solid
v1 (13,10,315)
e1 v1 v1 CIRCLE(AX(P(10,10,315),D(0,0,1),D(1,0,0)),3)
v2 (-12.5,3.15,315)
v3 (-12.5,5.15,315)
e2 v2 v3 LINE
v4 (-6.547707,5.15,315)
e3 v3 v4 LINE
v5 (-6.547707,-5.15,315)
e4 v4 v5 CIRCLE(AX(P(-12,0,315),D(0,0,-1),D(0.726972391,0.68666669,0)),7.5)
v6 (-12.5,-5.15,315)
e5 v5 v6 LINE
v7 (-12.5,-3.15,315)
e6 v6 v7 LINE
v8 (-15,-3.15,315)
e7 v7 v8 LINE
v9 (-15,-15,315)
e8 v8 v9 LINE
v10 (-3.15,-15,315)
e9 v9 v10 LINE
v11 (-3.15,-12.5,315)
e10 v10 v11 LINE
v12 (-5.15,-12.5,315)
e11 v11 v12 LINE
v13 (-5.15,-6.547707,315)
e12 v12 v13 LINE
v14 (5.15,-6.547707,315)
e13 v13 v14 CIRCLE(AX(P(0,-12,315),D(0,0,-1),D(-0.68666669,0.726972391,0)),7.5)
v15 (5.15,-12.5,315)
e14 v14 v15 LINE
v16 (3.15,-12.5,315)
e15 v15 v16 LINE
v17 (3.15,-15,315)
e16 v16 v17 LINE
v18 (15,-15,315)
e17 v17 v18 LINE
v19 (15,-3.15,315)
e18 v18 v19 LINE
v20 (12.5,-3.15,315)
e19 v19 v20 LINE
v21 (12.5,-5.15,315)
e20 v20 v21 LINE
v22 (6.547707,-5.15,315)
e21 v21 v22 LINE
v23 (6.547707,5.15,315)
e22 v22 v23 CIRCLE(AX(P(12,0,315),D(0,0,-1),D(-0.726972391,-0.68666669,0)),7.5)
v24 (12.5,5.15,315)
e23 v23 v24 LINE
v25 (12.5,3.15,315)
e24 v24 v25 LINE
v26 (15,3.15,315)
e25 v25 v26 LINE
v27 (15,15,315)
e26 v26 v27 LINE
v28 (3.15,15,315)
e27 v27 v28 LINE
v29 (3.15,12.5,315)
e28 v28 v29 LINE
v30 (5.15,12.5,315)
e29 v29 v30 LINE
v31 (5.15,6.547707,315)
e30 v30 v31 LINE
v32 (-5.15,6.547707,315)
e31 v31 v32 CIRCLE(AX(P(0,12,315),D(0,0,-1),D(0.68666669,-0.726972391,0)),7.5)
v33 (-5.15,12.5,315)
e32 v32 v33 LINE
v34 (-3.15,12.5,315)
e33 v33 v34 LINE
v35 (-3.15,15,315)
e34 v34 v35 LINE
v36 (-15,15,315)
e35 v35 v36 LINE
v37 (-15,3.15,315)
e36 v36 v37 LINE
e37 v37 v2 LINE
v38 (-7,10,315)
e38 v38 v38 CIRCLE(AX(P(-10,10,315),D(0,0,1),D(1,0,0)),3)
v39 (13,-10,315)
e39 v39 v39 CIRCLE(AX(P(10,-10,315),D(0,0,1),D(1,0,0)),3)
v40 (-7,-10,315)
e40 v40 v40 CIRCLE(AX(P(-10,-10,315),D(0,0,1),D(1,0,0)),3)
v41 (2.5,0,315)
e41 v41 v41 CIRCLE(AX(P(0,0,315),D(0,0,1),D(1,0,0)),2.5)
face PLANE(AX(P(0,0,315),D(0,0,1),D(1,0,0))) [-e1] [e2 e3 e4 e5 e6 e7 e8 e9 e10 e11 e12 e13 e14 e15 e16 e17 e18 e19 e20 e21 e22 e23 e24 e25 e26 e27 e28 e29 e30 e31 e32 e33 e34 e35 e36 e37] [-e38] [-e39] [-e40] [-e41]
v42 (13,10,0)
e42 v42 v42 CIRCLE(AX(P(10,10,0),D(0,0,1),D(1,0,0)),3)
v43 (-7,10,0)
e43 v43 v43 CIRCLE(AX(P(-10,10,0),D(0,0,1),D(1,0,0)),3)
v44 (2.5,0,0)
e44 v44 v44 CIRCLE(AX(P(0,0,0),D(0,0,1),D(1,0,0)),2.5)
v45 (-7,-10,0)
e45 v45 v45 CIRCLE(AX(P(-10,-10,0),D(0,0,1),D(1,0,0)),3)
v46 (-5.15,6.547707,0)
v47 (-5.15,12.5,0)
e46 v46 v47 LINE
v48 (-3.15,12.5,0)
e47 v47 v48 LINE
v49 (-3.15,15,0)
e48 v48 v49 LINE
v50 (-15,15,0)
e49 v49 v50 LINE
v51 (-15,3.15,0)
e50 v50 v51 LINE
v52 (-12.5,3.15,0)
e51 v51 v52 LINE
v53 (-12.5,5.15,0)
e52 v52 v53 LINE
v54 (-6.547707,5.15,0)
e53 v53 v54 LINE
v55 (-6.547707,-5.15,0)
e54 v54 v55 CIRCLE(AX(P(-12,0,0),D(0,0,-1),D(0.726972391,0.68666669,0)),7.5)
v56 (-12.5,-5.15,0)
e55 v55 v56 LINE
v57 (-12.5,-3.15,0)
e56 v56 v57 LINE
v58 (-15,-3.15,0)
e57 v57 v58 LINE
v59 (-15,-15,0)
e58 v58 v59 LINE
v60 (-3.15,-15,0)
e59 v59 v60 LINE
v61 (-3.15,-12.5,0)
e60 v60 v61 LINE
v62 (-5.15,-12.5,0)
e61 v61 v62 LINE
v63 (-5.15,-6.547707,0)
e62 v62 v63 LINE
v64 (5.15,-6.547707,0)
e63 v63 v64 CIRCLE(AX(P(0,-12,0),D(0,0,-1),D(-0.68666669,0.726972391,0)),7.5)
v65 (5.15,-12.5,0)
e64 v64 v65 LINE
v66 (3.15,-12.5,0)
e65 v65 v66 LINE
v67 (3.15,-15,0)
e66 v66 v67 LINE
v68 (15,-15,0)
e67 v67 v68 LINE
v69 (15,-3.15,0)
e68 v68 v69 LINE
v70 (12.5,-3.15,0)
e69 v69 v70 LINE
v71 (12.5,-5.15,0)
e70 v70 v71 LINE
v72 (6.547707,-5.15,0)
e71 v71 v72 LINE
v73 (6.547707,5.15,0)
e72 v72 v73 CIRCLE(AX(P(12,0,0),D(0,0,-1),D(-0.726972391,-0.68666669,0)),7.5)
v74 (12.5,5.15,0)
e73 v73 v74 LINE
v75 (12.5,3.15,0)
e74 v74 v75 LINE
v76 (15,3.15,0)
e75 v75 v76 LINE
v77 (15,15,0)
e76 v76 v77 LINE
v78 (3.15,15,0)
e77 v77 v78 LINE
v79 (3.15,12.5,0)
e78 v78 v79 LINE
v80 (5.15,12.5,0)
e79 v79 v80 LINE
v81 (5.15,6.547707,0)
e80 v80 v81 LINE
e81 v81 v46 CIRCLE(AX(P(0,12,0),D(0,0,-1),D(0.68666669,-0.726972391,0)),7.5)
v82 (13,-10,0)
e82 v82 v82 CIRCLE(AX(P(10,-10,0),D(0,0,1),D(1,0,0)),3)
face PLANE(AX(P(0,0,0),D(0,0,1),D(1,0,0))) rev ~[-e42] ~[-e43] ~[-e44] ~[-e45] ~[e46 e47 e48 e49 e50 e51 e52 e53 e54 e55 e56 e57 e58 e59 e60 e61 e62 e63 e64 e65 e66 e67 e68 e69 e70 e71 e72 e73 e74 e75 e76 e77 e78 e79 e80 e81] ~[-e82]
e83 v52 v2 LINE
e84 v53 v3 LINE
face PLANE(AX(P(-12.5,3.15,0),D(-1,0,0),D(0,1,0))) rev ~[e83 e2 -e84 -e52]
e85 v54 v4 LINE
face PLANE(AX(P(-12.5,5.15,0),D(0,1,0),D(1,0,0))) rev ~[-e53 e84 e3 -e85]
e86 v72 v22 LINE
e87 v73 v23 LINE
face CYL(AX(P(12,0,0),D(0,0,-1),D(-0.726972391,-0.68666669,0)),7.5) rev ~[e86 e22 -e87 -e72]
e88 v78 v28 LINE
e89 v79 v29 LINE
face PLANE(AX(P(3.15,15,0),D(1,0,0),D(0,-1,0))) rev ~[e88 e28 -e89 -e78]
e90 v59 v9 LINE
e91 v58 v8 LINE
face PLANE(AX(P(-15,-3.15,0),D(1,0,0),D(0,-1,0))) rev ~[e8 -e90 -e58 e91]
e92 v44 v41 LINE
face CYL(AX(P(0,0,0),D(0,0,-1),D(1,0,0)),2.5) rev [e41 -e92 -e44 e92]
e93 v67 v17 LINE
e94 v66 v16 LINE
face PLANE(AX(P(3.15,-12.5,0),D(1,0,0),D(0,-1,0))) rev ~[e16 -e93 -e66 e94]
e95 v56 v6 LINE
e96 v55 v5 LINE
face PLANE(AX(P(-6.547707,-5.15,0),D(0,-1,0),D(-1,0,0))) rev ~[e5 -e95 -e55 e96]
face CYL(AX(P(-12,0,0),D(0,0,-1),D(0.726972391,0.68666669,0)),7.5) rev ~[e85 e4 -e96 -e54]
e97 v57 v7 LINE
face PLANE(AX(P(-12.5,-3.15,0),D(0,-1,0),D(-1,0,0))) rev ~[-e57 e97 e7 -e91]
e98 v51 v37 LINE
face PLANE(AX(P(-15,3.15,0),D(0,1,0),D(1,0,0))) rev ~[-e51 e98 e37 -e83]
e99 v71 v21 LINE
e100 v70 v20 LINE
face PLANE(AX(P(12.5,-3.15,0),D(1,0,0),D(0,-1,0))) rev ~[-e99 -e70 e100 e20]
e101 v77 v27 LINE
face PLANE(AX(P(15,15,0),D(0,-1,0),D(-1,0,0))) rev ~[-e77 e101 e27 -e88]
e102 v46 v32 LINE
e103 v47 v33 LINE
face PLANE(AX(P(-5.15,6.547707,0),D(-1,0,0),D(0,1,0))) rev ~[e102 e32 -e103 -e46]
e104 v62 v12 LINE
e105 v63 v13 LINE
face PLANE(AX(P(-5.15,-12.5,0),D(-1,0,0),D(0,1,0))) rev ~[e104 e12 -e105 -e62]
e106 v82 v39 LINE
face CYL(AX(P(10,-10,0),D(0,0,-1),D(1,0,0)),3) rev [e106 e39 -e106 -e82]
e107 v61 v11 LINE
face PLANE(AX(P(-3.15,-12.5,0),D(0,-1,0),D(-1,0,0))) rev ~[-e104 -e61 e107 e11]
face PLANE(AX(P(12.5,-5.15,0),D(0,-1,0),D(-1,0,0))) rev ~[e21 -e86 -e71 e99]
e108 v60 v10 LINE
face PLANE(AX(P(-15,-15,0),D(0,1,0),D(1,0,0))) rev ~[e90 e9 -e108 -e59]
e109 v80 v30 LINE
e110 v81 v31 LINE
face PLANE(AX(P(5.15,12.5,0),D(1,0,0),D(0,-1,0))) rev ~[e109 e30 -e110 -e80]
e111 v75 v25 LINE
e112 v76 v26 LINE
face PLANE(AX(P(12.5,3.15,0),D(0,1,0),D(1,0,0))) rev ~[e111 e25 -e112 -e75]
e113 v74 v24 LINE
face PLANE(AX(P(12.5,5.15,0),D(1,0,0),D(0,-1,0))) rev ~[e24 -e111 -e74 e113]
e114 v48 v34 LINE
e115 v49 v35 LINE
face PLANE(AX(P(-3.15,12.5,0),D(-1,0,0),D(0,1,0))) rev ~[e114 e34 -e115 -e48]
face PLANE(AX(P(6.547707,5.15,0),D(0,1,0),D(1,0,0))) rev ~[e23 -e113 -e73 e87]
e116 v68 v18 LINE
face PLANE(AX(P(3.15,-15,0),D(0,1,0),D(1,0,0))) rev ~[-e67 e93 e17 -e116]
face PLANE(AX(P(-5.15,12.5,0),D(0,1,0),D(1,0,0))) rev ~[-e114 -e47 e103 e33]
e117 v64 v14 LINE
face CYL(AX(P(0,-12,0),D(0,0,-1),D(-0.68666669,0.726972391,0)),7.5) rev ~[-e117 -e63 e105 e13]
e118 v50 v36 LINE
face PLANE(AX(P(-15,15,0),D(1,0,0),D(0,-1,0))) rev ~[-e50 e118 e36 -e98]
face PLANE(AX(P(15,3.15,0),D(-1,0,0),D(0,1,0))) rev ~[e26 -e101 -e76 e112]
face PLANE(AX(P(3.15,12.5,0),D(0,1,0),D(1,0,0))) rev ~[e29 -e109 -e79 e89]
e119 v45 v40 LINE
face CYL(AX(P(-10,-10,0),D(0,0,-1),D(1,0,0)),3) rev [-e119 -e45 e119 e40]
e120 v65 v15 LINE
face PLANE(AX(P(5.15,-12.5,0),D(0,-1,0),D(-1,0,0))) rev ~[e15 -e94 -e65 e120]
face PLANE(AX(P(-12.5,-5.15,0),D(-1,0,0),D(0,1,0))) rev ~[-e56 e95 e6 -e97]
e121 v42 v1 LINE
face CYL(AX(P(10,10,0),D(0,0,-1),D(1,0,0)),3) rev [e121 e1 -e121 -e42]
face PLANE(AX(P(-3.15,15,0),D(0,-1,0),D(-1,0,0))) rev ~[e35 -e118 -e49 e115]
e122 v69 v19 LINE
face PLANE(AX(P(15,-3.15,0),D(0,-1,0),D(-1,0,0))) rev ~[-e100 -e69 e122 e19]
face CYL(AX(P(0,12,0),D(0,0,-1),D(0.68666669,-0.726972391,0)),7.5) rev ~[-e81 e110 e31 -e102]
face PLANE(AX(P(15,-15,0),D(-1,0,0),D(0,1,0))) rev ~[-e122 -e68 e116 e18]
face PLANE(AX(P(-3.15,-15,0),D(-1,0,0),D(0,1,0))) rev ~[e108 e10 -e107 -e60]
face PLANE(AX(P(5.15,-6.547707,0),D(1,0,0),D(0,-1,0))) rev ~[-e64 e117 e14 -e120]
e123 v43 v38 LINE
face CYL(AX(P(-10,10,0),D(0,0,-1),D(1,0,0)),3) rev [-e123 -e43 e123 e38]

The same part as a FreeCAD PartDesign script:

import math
import FreeCAD as App
import Part
import Sketcher

V = App.Vector
Q = App.Units.Quantity

doc = App.newDocument("Part")
body = doc.addObject("PartDesign::Body", "Body")

# Sketch on XY plane
sketch1 = body.newObject("Sketcher::SketchObject", "Sketch")
sketch1.AttachmentSupport = (doc.getObject("XY_Plane"), [""])
sketch1.MapMode = "FlatFace"
sketch1.addGeometry([
    Part.LineSegment(V(-15, 15, 0), V(-15, 3.1, 0)),  # 0
    Part.LineSegment(V(-15, 3.1, 0), V(-12.5, 3.1, 0)),  # 1
    Part.LineSegment(V(-12.5, 3.1, 0), V(-12.5, 5.2, 0)),  # 2
    Part.LineSegment(V(-12.5, 5.2, 0), V(-6.5, 5.2, 0)),  # 3
    Part.ArcOfCircle(Part.Circle(V(-12, 0, 0), V(0, 0, 1), 7.5), math.radians(-43), math.radians(43)),  # 4
    Part.LineSegment(V(-6.5, -5.2, 0), V(-12.5, -5.2, 0)),  # 5
    Part.LineSegment(V(-12.5, -5.2, 0), V(-12.5, -3.1, 0)),  # 6
    Part.LineSegment(V(-12.5, -3.1, 0), V(-15, -3.1, 0)),  # 7
    Part.LineSegment(V(-15, -3.1, 0), V(-15, -15, 0)),  # 8
    Part.LineSegment(V(-15, -15, 0), V(-3.1, -15, 0)),  # 9
    Part.LineSegment(V(-3.1, -15, 0), V(-3.1, -12.5, 0)),  # 10
    Part.LineSegment(V(-3.1, -12.5, 0), V(-5.2, -12.5, 0)),  # 11
    Part.LineSegment(V(-5.2, -12.5, 0), V(-5.2, -6.5, 0)),  # 12
    Part.ArcOfCircle(Part.Circle(V(0, -12, 0), V(0, 0, 1), 7.5), math.radians(47), math.radians(133)),  # 13
    Part.LineSegment(V(5.2, -6.5, 0), V(5.2, -12.5, 0)),  # 14
    Part.LineSegment(V(5.2, -12.5, 0), V(3.1, -12.5, 0)),  # 15
    Part.LineSegment(V(3.1, -12.5, 0), V(3.1, -15, 0)),  # 16
    Part.LineSegment(V(3.1, -15, 0), V(15, -15, 0)),  # 17
    Part.LineSegment(V(15, -15, 0), V(15, -3.1, 0)),  # 18
    Part.LineSegment(V(15, -3.1, 0), V(12.5, -3.1, 0)),  # 19
    Part.LineSegment(V(12.5, -3.1, 0), V(12.5, -5.2, 0)),  # 20
    Part.LineSegment(V(12.5, -5.2, 0), V(6.5, -5.2, 0)),  # 21
    Part.ArcOfCircle(Part.Circle(V(12, 0, 0), V(0, 0, 1), 7.5), math.radians(137), math.radians(223)),  # 22
    Part.LineSegment(V(6.5, 5.2, 0), V(12.5, 5.2, 0)),  # 23
    Part.LineSegment(V(12.5, 5.2, 0), V(12.5, 3.1, 0)),  # 24
    Part.LineSegment(V(12.5, 3.1, 0), V(15, 3.1, 0)),  # 25
    Part.LineSegment(V(15, 3.1, 0), V(15, 15, 0)),  # 26
    Part.LineSegment(V(15, 15, 0), V(3.1, 15, 0)),  # 27
    Part.LineSegment(V(3.1, 15, 0), V(3.1, 12.5, 0)),  # 28
    Part.LineSegment(V(3.1, 12.5, 0), V(5.2, 12.5, 0)),  # 29
    Part.LineSegment(V(5.2, 12.5, 0), V(5.2, 6.5, 0)),  # 30
    Part.ArcOfCircle(Part.Circle(V(0, 12, 0), V(0, 0, 1), 7.5), math.radians(-133), math.radians(-47)),  # 31
    Part.LineSegment(V(-5.2, 6.5, 0), V(-5.2, 12.5, 0)),  # 32
    Part.LineSegment(V(-5.2, 12.5, 0), V(-3.1, 12.5, 0)),  # 33
    Part.LineSegment(V(-3.1, 12.5, 0), V(-3.1, 15, 0)),  # 34
    Part.LineSegment(V(-3.1, 15, 0), V(-15, 15, 0)),  # 35
    Part.Circle(V(-10, -10, 0), V(0, 0, 1), 3),  # 36
    Part.Circle(V(10, -10, 0), V(0, 0, 1), 3),  # 37
    Part.Circle(V(-10, 10, 0), V(0, 0, 1), 3),  # 38
    Part.Circle(V(0, 0, 0), V(0, 0, 1), 2.5),  # 39
    Part.Circle(V(10, 10, 0), V(0, 0, 1), 3),  # 40
], False)
sketch1.addConstraint([
    Sketcher.Constraint("Coincident", 0, 2, 1, 1),
    Sketcher.Constraint("Coincident", 1, 2, 2, 1),
    Sketcher.Constraint("Coincident", 2, 2, 3, 1),
    Sketcher.Constraint("Coincident", 3, 2, 4, 2),
    Sketcher.Constraint("Coincident", 4, 1, 5, 1),
    Sketcher.Constraint("Coincident", 5, 2, 6, 1),
    Sketcher.Constraint("Coincident", 6, 2, 7, 1),
    Sketcher.Constraint("Coincident", 7, 2, 8, 1),
    Sketcher.Constraint("Coincident", 8, 2, 9, 1),
    Sketcher.Constraint("Coincident", 9, 2, 10, 1),
    Sketcher.Constraint("Coincident", 10, 2, 11, 1),
    Sketcher.Constraint("Coincident", 11, 2, 12, 1),
    Sketcher.Constraint("Coincident", 12, 2, 13, 2),
    Sketcher.Constraint("Coincident", 13, 1, 14, 1),
    Sketcher.Constraint("Coincident", 14, 2, 15, 1),
    Sketcher.Constraint("Coincident", 15, 2, 16, 1),
    Sketcher.Constraint("Coincident", 16, 2, 17, 1),
    Sketcher.Constraint("Coincident", 17, 2, 18, 1),
    Sketcher.Constraint("Coincident", 18, 2, 19, 1),
    Sketcher.Constraint("Coincident", 19, 2, 20, 1),
    Sketcher.Constraint("Coincident", 20, 2, 21, 1),
    Sketcher.Constraint("Coincident", 21, 2, 22, 2),
    Sketcher.Constraint("Coincident", 22, 1, 23, 1),
    Sketcher.Constraint("Coincident", 23, 2, 24, 1),
    Sketcher.Constraint("Coincident", 24, 2, 25, 1),
    Sketcher.Constraint("Coincident", 25, 2, 26, 1),
    Sketcher.Constraint("Coincident", 26, 2, 27, 1),
    Sketcher.Constraint("Coincident", 27, 2, 28, 1),
    Sketcher.Constraint("Coincident", 28, 2, 29, 1),
    Sketcher.Constraint("Coincident", 29, 2, 30, 1),
    Sketcher.Constraint("Coincident", 30, 2, 31, 2),
    Sketcher.Constraint("Coincident", 31, 1, 32, 1),
    Sketcher.Constraint("Coincident", 32, 2, 33, 1),
    Sketcher.Constraint("Coincident", 33, 2, 34, 1),
    Sketcher.Constraint("Coincident", 34, 2, 35, 1),
    Sketcher.Constraint("Coincident", 35, 2, 0, 1),
    Sketcher.Constraint("Vertical", 0),
    Sketcher.Constraint("Horizontal", 1),
    Sketcher.Constraint("Vertical", 2),
    Sketcher.Constraint("Horizontal", 3),
    Sketcher.Constraint("Horizontal", 5),
    Sketcher.Constraint("Vertical", 6),
    Sketcher.Constraint("Horizontal", 7),
    Sketcher.Constraint("Vertical", 8),
    Sketcher.Constraint("Horizontal", 9),
    Sketcher.Constraint("Vertical", 10),
    Sketcher.Constraint("Horizontal", 11),
    Sketcher.Constraint("Vertical", 12),
    Sketcher.Constraint("Vertical", 14),
    Sketcher.Constraint("Horizontal", 15),
    Sketcher.Constraint("Vertical", 16),
    Sketcher.Constraint("Horizontal", 17),
    Sketcher.Constraint("Vertical", 18),
    Sketcher.Constraint("Horizontal", 19),
    Sketcher.Constraint("Vertical", 20),
    Sketcher.Constraint("Horizontal", 21),
    Sketcher.Constraint("Horizontal", 23),
    Sketcher.Constraint("Vertical", 24),
    Sketcher.Constraint("Horizontal", 25),
    Sketcher.Constraint("Vertical", 26),
    Sketcher.Constraint("Horizontal", 27),
    Sketcher.Constraint("Vertical", 28),
    Sketcher.Constraint("Horizontal", 29),
    Sketcher.Constraint("Vertical", 30),
    Sketcher.Constraint("Vertical", 32),
    Sketcher.Constraint("Horizontal", 33),
    Sketcher.Constraint("Vertical", 34),
    Sketcher.Constraint("Horizontal", 35),
    Sketcher.Constraint("Coincident", 39, 3, -1, 1),
    Sketcher.Constraint("Equal", 4, 13),
    Sketcher.Constraint("Equal", 13, 22),
    Sketcher.Constraint("Equal", 22, 31),
    Sketcher.Constraint("Equal", 36, 37),
    Sketcher.Constraint("Equal", 37, 38),
    Sketcher.Constraint("Equal", 38, 40),
    Sketcher.Constraint("Symmetric", 4, 3, 22, 3, -1, 1),
    Sketcher.Constraint("Symmetric", 13, 3, 31, 3, -1, 1),
    Sketcher.Constraint("Symmetric", 37, 3, 38, 3, -1, 1),
    Sketcher.Constraint("Symmetric", 36, 3, 40, 3, -1, 1),
    Sketcher.Constraint("Symmetric", 0, 2, 18, 2, -1, 1),
    Sketcher.Constraint("Symmetric", 2, 2, 20, 2, -1, 1),
    Sketcher.Constraint("Symmetric", 5, 2, 23, 2, -1, 1),
    Sketcher.Constraint("Symmetric", 7, 2, 25, 2, -1, 1),
    Sketcher.Constraint("Symmetric", 9, 2, 27, 2, -1, 1),
    Sketcher.Constraint("Symmetric", 11, 2, 29, 2, -1, 1),
    Sketcher.Constraint("Symmetric", 14, 2, 32, 2, -1, 1),
    Sketcher.Constraint("Symmetric", 16, 2, 34, 2, -1, 1),
    Sketcher.Constraint("Symmetric", 36, 3, 37, 3, -2),
    Sketcher.Constraint("Symmetric", 12, 2, 13, 1, -2),
    Sketcher.Constraint("Symmetric", 10, 2, 15, 2, -2),
    Sketcher.Constraint("Symmetric", 8, 2, 17, 2, -2),
    Sketcher.Constraint("Symmetric", 6, 2, 19, 2, -2),
    Sketcher.Constraint("Symmetric", 4, 1, 21, 2, -2),
    Sketcher.Constraint("Equal", 35, 0),
    Sketcher.Constraint("Equal", 33, 2),
    Sketcher.Constraint("Equal", 25, 10),
    Sketcher.Constraint("Equal", 23, 12),
    Sketcher.Constraint("Diameter", 36, Q("6 mm")),
    Sketcher.Constraint("Diameter", 39, Q("5 mm")),
    Sketcher.Constraint("Radius", 4, Q("7.5 mm")),
    Sketcher.Constraint("DistanceX", 11, 2, 11, 1, Q("2 mm")),
    Sketcher.Constraint("DistanceX", 1, 1, 1, 2, Q("2.5 mm")),
    Sketcher.Constraint("DistanceX", 4, 3, -1, 1, Q("12 mm")),
    Sketcher.Constraint("DistanceY", 13, 3, -1, 1, Q("12 mm")),
    Sketcher.Constraint("DistanceX", 36, 3, -1, 1, Q("10 mm")),
    Sketcher.Constraint("DistanceY", 36, 3, -1, 1, Q("10 mm")),
    Sketcher.Constraint("DistanceX", 0, 2, -1, 1, Q("15 mm")),
    Sketcher.Constraint("DistanceX", 9, 1, 9, 2, Q("11.85 mm")),
])
pad1 = body.newObject("PartDesign::Pad", "Pad")
pad1.Profile = sketch1
pad1.Length = 315

doc.recompute()
